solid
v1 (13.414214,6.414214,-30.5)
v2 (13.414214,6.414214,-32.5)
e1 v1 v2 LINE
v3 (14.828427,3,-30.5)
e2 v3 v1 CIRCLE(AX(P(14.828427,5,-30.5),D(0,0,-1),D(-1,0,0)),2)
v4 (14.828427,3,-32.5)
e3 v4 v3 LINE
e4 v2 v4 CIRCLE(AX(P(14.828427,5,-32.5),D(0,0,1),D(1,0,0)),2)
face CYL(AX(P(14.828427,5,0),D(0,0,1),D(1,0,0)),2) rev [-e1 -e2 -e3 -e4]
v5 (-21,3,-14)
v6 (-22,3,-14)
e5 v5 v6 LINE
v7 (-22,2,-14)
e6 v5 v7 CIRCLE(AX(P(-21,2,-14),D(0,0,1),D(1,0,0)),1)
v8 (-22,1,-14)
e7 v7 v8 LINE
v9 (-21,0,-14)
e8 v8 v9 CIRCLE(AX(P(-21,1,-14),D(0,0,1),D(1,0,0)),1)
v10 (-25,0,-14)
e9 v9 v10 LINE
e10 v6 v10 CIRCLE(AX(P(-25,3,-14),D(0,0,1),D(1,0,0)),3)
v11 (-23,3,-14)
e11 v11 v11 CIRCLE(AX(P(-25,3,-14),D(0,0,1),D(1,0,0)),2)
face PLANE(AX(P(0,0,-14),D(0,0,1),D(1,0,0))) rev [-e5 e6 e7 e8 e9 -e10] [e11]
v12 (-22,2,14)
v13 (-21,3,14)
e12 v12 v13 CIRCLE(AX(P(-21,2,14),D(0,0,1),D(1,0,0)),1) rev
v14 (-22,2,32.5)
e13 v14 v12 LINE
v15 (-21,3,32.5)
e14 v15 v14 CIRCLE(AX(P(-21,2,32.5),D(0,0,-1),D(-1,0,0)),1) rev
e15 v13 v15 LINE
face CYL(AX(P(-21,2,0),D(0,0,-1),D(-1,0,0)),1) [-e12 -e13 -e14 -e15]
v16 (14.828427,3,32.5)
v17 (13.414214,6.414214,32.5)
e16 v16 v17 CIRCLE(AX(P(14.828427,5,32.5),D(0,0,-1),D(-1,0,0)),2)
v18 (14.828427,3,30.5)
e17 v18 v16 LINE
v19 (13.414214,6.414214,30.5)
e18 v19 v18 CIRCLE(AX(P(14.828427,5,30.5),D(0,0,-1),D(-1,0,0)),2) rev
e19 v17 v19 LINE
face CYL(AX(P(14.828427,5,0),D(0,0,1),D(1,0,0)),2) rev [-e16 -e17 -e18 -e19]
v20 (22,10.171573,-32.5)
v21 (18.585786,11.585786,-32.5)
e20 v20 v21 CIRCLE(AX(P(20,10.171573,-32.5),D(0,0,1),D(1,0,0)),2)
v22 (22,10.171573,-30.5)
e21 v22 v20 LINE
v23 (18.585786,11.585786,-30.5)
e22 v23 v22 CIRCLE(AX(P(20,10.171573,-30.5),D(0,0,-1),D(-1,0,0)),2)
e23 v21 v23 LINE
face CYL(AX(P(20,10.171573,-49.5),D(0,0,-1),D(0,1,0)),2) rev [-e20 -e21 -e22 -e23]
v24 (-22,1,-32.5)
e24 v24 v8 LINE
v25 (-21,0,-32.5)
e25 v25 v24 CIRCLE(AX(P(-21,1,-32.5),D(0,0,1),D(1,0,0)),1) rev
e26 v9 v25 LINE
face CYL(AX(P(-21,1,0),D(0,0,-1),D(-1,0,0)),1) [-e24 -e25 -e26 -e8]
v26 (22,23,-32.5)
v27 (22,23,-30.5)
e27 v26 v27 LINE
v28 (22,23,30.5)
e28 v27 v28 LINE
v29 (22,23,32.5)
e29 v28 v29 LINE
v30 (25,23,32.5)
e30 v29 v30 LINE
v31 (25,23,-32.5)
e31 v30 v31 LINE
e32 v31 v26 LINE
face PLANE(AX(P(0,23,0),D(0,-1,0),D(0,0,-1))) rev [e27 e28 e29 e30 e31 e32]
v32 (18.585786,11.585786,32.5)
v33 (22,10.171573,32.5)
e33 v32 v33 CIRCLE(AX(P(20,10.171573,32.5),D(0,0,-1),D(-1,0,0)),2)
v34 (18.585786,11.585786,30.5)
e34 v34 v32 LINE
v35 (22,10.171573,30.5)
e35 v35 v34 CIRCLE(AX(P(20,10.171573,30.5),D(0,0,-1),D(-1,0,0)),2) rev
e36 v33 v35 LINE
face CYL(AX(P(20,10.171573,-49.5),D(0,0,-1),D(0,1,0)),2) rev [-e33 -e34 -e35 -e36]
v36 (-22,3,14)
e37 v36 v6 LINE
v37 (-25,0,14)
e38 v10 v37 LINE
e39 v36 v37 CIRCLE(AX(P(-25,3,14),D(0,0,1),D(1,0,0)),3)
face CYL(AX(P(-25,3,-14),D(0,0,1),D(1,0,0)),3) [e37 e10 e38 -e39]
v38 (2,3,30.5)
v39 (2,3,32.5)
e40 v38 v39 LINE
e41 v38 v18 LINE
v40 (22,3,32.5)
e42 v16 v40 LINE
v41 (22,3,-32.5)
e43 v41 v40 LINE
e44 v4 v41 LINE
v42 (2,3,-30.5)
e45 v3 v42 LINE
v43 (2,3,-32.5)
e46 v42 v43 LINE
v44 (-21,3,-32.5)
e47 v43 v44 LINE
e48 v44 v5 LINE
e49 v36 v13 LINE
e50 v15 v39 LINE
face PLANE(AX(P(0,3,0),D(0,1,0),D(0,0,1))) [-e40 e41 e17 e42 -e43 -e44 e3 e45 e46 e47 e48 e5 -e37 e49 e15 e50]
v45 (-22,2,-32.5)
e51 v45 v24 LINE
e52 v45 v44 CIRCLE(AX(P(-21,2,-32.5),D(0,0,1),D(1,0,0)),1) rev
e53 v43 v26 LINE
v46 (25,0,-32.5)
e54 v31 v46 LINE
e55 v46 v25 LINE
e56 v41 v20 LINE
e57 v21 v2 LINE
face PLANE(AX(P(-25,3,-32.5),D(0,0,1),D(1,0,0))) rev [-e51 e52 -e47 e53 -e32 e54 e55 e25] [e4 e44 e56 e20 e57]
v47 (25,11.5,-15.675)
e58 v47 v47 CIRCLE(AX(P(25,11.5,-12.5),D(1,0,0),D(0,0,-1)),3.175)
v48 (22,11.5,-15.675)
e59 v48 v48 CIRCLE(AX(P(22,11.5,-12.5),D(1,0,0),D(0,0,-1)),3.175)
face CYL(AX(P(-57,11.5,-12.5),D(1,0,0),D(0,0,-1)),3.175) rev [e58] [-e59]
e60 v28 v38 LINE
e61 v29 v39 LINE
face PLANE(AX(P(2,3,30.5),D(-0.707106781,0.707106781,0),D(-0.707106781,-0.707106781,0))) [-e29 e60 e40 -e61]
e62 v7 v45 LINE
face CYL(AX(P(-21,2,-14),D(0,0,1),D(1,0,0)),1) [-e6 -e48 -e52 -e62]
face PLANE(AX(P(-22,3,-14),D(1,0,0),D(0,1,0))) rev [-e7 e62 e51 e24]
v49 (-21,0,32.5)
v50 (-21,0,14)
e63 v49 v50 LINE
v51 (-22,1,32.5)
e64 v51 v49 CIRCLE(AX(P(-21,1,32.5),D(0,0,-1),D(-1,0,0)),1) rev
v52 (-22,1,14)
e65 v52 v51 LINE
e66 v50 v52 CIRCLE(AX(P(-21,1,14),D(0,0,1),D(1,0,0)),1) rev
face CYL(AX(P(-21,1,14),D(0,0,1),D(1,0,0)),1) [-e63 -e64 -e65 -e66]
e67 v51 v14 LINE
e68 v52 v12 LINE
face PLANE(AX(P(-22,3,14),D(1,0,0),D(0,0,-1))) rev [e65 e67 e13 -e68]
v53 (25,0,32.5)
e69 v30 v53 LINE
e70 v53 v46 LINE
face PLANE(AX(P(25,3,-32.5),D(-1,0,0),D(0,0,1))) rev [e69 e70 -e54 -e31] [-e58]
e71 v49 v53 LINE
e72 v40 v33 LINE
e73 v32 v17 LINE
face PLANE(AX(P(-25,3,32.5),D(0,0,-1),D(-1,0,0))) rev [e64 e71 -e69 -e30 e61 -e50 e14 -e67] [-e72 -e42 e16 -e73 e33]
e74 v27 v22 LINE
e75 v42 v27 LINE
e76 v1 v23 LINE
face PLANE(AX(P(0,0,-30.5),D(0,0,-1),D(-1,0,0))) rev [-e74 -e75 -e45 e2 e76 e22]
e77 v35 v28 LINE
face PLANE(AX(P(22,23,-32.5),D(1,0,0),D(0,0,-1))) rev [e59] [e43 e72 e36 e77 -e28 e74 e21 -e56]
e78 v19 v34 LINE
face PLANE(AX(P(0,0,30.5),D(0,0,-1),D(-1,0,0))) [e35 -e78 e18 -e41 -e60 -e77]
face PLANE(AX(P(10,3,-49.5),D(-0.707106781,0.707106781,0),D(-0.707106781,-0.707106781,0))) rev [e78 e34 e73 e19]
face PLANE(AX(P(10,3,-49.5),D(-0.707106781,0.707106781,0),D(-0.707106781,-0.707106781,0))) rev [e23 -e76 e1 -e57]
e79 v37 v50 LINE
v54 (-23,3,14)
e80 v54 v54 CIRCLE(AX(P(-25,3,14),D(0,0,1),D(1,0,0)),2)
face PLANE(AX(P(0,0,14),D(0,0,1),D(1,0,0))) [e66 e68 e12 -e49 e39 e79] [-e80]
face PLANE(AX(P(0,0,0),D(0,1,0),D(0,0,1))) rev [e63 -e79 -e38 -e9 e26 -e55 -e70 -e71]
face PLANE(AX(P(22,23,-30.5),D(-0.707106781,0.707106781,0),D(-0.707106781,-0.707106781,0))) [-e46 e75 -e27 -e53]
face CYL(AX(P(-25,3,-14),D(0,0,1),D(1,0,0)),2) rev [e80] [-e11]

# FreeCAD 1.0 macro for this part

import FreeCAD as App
import Part
import Sketcher


def edges_at(feature, points):
    """Names of the edges that pass closest to the given points."""
    edges = feature.Shape.Edges
    near = lambda p: min(range(len(edges)), key=lambda i: edges[i].distToShape(Part.Vertex(*p))[0])
    return sorted({f"Edge{near(p) + 1}" for p in points})

doc = App.newDocument("Part")
body = doc.addObject("PartDesign::Body", "Body")

# Sketch on XZ plane
sketch1 = body.newObject("Sketcher::SketchObject", "Sketch")
sketch1.AttachmentSupport = (doc.getObject("XZ_Plane"), [""])
sketch1.MapMode = "FlatFace"
sketch1.addGeometry(Part.LineSegment(App.Vector(-25, -32, 0), App.Vector(-25, 32, 0)), False)
sketch1.addGeometry(Part.LineSegment(App.Vector(-25, 32, 0), App.Vector(25, 32, 0)), False)
sketch1.addGeometry(Part.LineSegment(App.Vector(25, 32, 0), App.Vector(25, -32, 0)), False)
sketch1.addGeometry(Part.LineSegment(App.Vector(25, -32, 0), App.Vector(-25, -32, 0)), False)
sketch1.addConstraint(Sketcher.Constraint("Coincident", 0, 2, 1, 1))
sketch1.addConstraint(Sketcher.Constraint("Coincident", 1, 2, 2, 1))
sketch1.addConstraint(Sketcher.Constraint("Coincident", 2, 2, 3, 1))
sketch1.addConstraint(Sketcher.Constraint("Coincident", 3, 2, 0, 1))
sketch1.addConstraint(Sketcher.Constraint("Vertical", 0))
sketch1.addConstraint(Sketcher.Constraint("Horizontal", 1))
sketch1.addConstraint(Sketcher.Constraint("Vertical", 2))
sketch1.addConstraint(Sketcher.Constraint("Horizontal", 3))
sketch1.addConstraint(Sketcher.Constraint("Symmetric", 0, 2, 2, 2, -1, 1))
sketch1.addConstraint(Sketcher.Constraint("DistanceX", 1, 1, 1, 2, 50.0))
sketch1.addConstraint(Sketcher.Constraint("DistanceY", 0, 1, 0, 2, 65.0))
pad1 = body.newObject("PartDesign::Pad", "Pad")
pad1.Profile = sketch1
pad1.Length = 3
pad1.Reversed = True

# Sketch on XY plane
sketch2 = body.newObject("Sketcher::SketchObject", "Sketch001")
sketch2.AttachmentSupport = (doc.getObject("XY_Plane"), [""])
sketch2.MapMode = "FlatFace"
sketch2.AttachmentOffset = App.Placement(App.Vector(0, 0, 32.5), App.Rotation())
sketch2.addGeometry(Part.LineSegment(App.Vector(-25, 3, 0), App.Vector(-25, 0, 0)), False)
sketch2.addGeometry(Part.LineSegment(App.Vector(-25, 0, 0), App.Vector(-22, 0, 0)), False)
sketch2.addGeometry(Part.LineSegment(App.Vector(-22, 0, 0), App.Vector(-22, 3, 0)), False)
sketch2.addGeometry(Part.LineSegment(App.Vector(-22, 3, 0), App.Vector(-25, 3, 0)), False)
sketch2.addConstraint(Sketcher.Constraint("Coincident", 0, 2, 1, 1))
sketch2.addConstraint(Sketcher.Constraint("Coincident", 1, 2, 2, 1))
sketch2.addConstraint(Sketcher.Constraint("Coincident", 2, 2, 3, 1))
sketch2.addConstraint(Sketcher.Constraint("Coincident", 3, 2, 0, 1))
sketch2.addConstraint(Sketcher.Constraint("Vertical", 0))
sketch2.addConstraint(Sketcher.Constraint("Horizontal", 1))
sketch2.addConstraint(Sketcher.Constraint("Vertical", 2))
sketch2.addConstraint(Sketcher.Constraint("Horizontal", 3))
sketch2.addConstraint(Sketcher.Constraint("PointOnObject", 0, 2, -1))
sketch2.addConstraint(Sketcher.Constraint("Equal", 3, 0))
sketch2.addConstraint(Sketcher.Constraint("DistanceX", 1, 1, 1, 2, 3.0))
sketch2.addConstraint(Sketcher.Constraint("DistanceX", 0, 2, -1, 1, 25.0))
pocket1 = body.newObject("PartDesign::Pocket", "Pocket")
pocket1.Profile = sketch2
pocket1.Length = 18.5

# Sketch on XY plane
sketch3 = body.newObject("Sketcher::SketchObject", "Sketch002")
sketch3.AttachmentSupport = (doc.getObject("XY_Plane"), [""])
sketch3.MapMode = "FlatFace"
sketch3.AttachmentOffset = App.Placement(App.Vector(0, 0, -32.5), App.Rotation())
sketch3.addGeometry(Part.LineSegment(App.Vector(-22, 3, 0), App.Vector(-22, 0, 0)), False)
sketch3.addGeometry(Part.LineSegment(App.Vector(-22, 0, 0), App.Vector(-25, 0, 0)), False)
sketch3.addGeometry(Part.LineSegment(App.Vector(-25, 0, 0), App.Vector(-25, 3, 0)), False)
sketch3.addGeometry(Part.LineSegment(App.Vector(-25, 3, 0), App.Vector(-22, 3, 0)), False)
sketch3.addConstraint(Sketcher.Constraint("Coincident", 0, 2, 1, 1))
sketch3.addConstraint(Sketcher.Constraint("Coincident", 1, 2, 2, 1))
sketch3.addConstraint(Sketcher.Constraint("Coincident", 2, 2, 3, 1))
sketch3.addConstraint(Sketcher.Constraint("Coincident", 3, 2, 0, 1))
sketch3.addConstraint(Sketcher.Constraint("Vertical", 0))
sketch3.addConstraint(Sketcher.Constraint("Horizontal", 1))
sketch3.addConstraint(Sketcher.Constraint("Vertical", 2))
sketch3.addConstraint(Sketcher.Constraint("Horizontal", 3))
sketch3.addConstraint(Sketcher.Constraint("PointOnObject", 0, 2, -1))
sketch3.addConstraint(Sketcher.Constraint("Equal", 3, 0))
sketch3.addConstraint(Sketcher.Constraint("DistanceX", 1, 2, 1, 1, 3.0))
sketch3.addConstraint(Sketcher.Constraint("DistanceX", 0, 2, -1, 1, 22.0))
pocket2 = body.newObject("PartDesign::Pocket", "Pocket001")
pocket2.Profile = sketch3
pocket2.Length = 18.5
pocket2.Reversed = True

# Sketch on XY plane
sketch4 = body.newObject("Sketcher::SketchObject", "Sketch003")
sketch4.AttachmentSupport = (doc.getObject("XY_Plane"), [""])
sketch4.MapMode = "FlatFace"
sketch4.AttachmentOffset = App.Placement(App.Vector(0, 0, 14), App.Rotation())
sketch4.addGeometry(Part.Circle(App.Vector(-25, 3, 0), App.Vector(0, 0, 1), 3), False)
sketch4.addConstraint(Sketcher.Constraint("Diameter", 0, 6.0))
sketch4.addConstraint(Sketcher.Constraint("DistanceX", 0, 3, -1, 1, 25.0))
sketch4.addConstraint(Sketcher.Constraint("DistanceY", -1, 1, 0, 3, 3.0))
pad2 = body.newObject("PartDesign::Pad", "Pad001")
pad2.Profile = sketch4
pad2.Length = 28
pad2.Reversed = True

# Sketch on XY plane
sketch5 = body.newObject("Sketcher::SketchObject", "Sketch004")
sketch5.AttachmentSupport = (doc.getObject("XY_Plane"), [""])
sketch5.MapMode = "FlatFace"
sketch5.AttachmentOffset = App.Placement(App.Vector(0, 0, 14), App.Rotation())
sketch5.addGeometry(Part.Circle(App.Vector(-25, 3, 0), App.Vector(0, 0, 1), 2), False)
sketch5.addConstraint(Sketcher.Constraint("Diameter", 0, 4.0))
sketch5.addConstraint(Sketcher.Constraint("DistanceX", 0, 3, -1, 1, 25.0))
sketch5.addConstraint(Sketcher.Constraint("DistanceY", -1, 1, 0, 3, 3.0))
pocket3 = body.newObject("PartDesign::Pocket", "Pocket002")
pocket3.Profile = sketch5
pocket3.Length = 28
doc.recompute()

fillet = body.newObject("PartDesign::Fillet", "Fillet")
fillet.Base = (pocket3, edges_at(pocket3, [
    (-22, 3, 23.25),
    (-22, 0, 23.25),
    (-22, 0, -23.25),
    (-22, 3, -23.25),
]))
fillet.Radius = 1

# Sketch on XZ plane
sketch6 = body.newObject("Sketcher::SketchObject", "Sketch005")
sketch6.AttachmentSupport = (doc.getObject("XZ_Plane"), [""])
sketch6.MapMode = "FlatFace"
sketch6.AttachmentOffset = App.Placement(App.Vector(0, 0, -3), App.Rotation())
sketch6.addGeometry(Part.LineSegment(App.Vector(22, -32.5, 0), App.Vector(22, 32.5, 0)), False)
sketch6.addGeometry(Part.LineSegment(App.Vector(22, 32.5, 0), App.Vector(25, 32.5, 0)), False)
sketch6.addGeometry(Part.LineSegment(App.Vector(25, 32.5, 0), App.Vector(25, -32.5, 0)), False)
sketch6.addGeometry(Part.LineSegment(App.Vector(25, -32.5, 0), App.Vector(22, -32.5, 0)), False)
sketch6.addConstraint(Sketcher.Constraint("Coincident", 0, 2, 1, 1))
sketch6.addConstraint(Sketcher.Constraint("Coincident", 1, 2, 2, 1))
sketch6.addConstraint(Sketcher.Constraint("Coincident", 2, 2, 3, 1))
sketch6.addConstraint(Sketcher.Constraint("Coincident", 3, 2, 0, 1))
sketch6.addConstraint(Sketcher.Constraint("Vertical", 0))
sketch6.addConstraint(Sketcher.Constraint("Horizontal", 1))
sketch6.addConstraint(Sketcher.Constraint("Vertical", 2))
sketch6.addConstraint(Sketcher.Constraint("Horizontal", 3))
sketch6.addConstraint(Sketcher.Constraint("DistanceX", 1, 1, 1, 2, 3.0))
sketch6.addConstraint(Sketcher.Constraint("DistanceY", 0, 1, 0, 2, 65.0))
sketch6.addConstraint(Sketcher.Constraint("DistanceX", -1, 1, 0, 2, 22.0))
sketch6.addConstraint(Sketcher.Constraint("DistanceY", -1, 1, 0, 2, 32.5))
pad3 = body.newObject("PartDesign::Pad", "Pad002")
pad3.Profile = sketch6
pad3.Length = 20
pad3.Reversed = True

# Sketch on XY plane
sketch7 = body.newObject("Sketcher::SketchObject", "Sketch006")
sketch7.AttachmentSupport = (doc.getObject("XY_Plane"), [""])
sketch7.MapMode = "FlatFace"
sketch7.AttachmentOffset = App.Placement(App.Vector(0, 0, 32.5), App.Rotation())
sketch7.addGeometry(Part.LineSegment(App.Vector(22, 3, 0), App.Vector(22, 23, 0)), False)
sketch7.addGeometry(Part.LineSegment(App.Vector(22, 23, 0), App.Vector(2, 3, 0)), False)
sketch7.addGeometry(Part.LineSegment(App.Vector(2, 3, 0), App.Vector(22, 3, 0)), False)
sketch7.addConstraint(Sketcher.Constraint("Coincident", 0, 2, 1, 1))
sketch7.addConstraint(Sketcher.Constraint("Coincident", 1, 2, 2, 1))
sketch7.addConstraint(Sketcher.Constraint("Coincident", 2, 2, 0, 1))
sketch7.addConstraint(Sketcher.Constraint("Vertical", 0))
sketch7.addConstraint(Sketcher.Constraint("Horizontal", 2))
sketch7.addConstraint(Sketcher.Constraint("Equal", 2, 0))
sketch7.addConstraint(Sketcher.Constraint("DistanceX", 2, 1, 2, 2, 20.0))
sketch7.addConstraint(Sketcher.Constraint("DistanceX", -1, 1, 0, 2, 22.0))
sketch7.addConstraint(Sketcher.Constraint("DistanceY", -1, 1, 0, 2, 23.0))
pad4 = body.newObject("PartDesign::Pad", "Pad003")
pad4.Profile = sketch7
pad4.Length = 2
pad4.Reversed = True

# Sketch on XY plane
sketch8 = body.newObject("Sketcher::SketchObject", "Sketch007")
sketch8.AttachmentSupport = (doc.getObject("XY_Plane"), [""])
sketch8.MapMode = "FlatFace"
sketch8.AttachmentOffset = App.Placement(App.Vector(0, 0, -32.5), App.Rotation())
sketch8.addGeometry(Part.LineSegment(App.Vector(2, 3, 0), App.Vector(22, 23, 0)), False)
sketch8.addGeometry(Part.LineSegment(App.Vector(22, 23, 0), App.Vector(22, 3, 0)), False)
sketch8.addGeometry(Part.LineSegment(App.Vector(22, 3, 0), App.Vector(2, 3, 0)), False)
sketch8.addConstraint(Sketcher.Constraint("Coincident", 0, 2, 1, 1))
sketch8.addConstraint(Sketcher.Constraint("Coincident", 1, 2, 2, 1))
sketch8.addConstraint(Sketcher.Constraint("Coincident", 2, 2, 0, 1))
sketch8.addConstraint(Sketcher.Constraint("Vertical", 1))
sketch8.addConstraint(Sketcher.Constraint("Horizontal", 2))
sketch8.addConstraint(Sketcher.Constraint("Equal", 2, 1))
sketch8.addConstraint(Sketcher.Constraint("DistanceX", 2, 2, 2, 1, 20.0))
sketch8.addConstraint(Sketcher.Constraint("DistanceX", -1, 1, 0, 2, 22.0))
sketch8.addConstraint(Sketcher.Constraint("DistanceY", -1, 1, 0, 2, 23.0))
pad5 = body.newObject("PartDesign::Pad", "Pad004")
pad5.Profile = sketch8
pad5.Length = 2

# Sketch on XY plane
sketch9 = body.newObject("Sketcher::SketchObject", "Sketch008")
sketch9.AttachmentSupport = (doc.getObject("XY_Plane"), [""])
sketch9.MapMode = "FlatFace"
sketch9.AttachmentOffset = App.Placement(App.Vector(0, 0, 32.5), App.Rotation())
sketch9.addGeometry(Part.LineSegment(App.Vector(22, 3, 0), App.Vector(22, 15, 0)), False)
sketch9.addGeometry(Part.LineSegment(App.Vector(22, 15, 0), App.Vector(10, 3, 0)), False)
sketch9.addGeometry(Part.LineSegment(App.Vector(10, 3, 0), App.Vector(22, 3, 0)), False)
sketch9.addConstraint(Sketcher.Constraint("Coincident", 0, 2, 1, 1))
sketch9.addConstraint(Sketcher.Constraint("Coincident", 1, 2, 2, 1))
sketch9.addConstraint(Sketcher.Constraint("Coincident", 2, 2, 0, 1))
sketch9.addConstraint(Sketcher.Constraint("Vertical", 0))
sketch9.addConstraint(Sketcher.Constraint("Horizontal", 2))
sketch9.addConstraint(Sketcher.Constraint("Equal", 2, 0))
sketch9.addConstraint(Sketcher.Constraint("DistanceX", 2, 1, 2, 2, 12.0))
sketch9.addConstraint(Sketcher.Constraint("DistanceX", -1, 1, 0, 2, 22.0))
sketch9.addConstraint(Sketcher.Constraint("DistanceY", -1, 1, 0, 2, 15.0))
pocket4 = body.newObject("PartDesign::Pocket", "Pocket003")
pocket4.Profile = sketch9
pocket4.Length = 82
doc.recompute()

fillet2 = body.newObject("PartDesign::Fillet", "Fillet001")
fillet2.Base = (pocket4, edges_at(pocket4, [
    (10, 3, -31.5),
    (22, 15, -31.5),
    (10, 3, 31.5),
    (22, 15, 31.5),
]))
fillet2.Radius = 2

# Sketch on YZ plane
sketch10 = body.newObject("Sketcher::SketchObject", "Sketch009")
sketch10.AttachmentSupport = (doc.getObject("YZ_Plane"), [""])
sketch10.MapMode = "FlatFace"
sketch10.AttachmentOffset = App.Placement(App.Vector(0, 0, 25), App.Rotation())
sketch10.addGeometry(Part.Circle(App.Vector(11.5, -12.5, 0), App.Vector(0, 0, 1), 3.2), False)
sketch10.addConstraint(Sketcher.Constraint("Diameter", 0, 6.35))
sketch10.addConstraint(Sketcher.Constraint("DistanceX", -1, 1, 0, 3, 11.5))
sketch10.addConstraint(Sketcher.Constraint("DistanceY", 0, 3, -1, 1, 12.5))
pocket5 = body.newObject("PartDesign::Pocket", "Pocket004")
pocket5.Profile = sketch10
pocket5.Length = 82

doc.recompute()
